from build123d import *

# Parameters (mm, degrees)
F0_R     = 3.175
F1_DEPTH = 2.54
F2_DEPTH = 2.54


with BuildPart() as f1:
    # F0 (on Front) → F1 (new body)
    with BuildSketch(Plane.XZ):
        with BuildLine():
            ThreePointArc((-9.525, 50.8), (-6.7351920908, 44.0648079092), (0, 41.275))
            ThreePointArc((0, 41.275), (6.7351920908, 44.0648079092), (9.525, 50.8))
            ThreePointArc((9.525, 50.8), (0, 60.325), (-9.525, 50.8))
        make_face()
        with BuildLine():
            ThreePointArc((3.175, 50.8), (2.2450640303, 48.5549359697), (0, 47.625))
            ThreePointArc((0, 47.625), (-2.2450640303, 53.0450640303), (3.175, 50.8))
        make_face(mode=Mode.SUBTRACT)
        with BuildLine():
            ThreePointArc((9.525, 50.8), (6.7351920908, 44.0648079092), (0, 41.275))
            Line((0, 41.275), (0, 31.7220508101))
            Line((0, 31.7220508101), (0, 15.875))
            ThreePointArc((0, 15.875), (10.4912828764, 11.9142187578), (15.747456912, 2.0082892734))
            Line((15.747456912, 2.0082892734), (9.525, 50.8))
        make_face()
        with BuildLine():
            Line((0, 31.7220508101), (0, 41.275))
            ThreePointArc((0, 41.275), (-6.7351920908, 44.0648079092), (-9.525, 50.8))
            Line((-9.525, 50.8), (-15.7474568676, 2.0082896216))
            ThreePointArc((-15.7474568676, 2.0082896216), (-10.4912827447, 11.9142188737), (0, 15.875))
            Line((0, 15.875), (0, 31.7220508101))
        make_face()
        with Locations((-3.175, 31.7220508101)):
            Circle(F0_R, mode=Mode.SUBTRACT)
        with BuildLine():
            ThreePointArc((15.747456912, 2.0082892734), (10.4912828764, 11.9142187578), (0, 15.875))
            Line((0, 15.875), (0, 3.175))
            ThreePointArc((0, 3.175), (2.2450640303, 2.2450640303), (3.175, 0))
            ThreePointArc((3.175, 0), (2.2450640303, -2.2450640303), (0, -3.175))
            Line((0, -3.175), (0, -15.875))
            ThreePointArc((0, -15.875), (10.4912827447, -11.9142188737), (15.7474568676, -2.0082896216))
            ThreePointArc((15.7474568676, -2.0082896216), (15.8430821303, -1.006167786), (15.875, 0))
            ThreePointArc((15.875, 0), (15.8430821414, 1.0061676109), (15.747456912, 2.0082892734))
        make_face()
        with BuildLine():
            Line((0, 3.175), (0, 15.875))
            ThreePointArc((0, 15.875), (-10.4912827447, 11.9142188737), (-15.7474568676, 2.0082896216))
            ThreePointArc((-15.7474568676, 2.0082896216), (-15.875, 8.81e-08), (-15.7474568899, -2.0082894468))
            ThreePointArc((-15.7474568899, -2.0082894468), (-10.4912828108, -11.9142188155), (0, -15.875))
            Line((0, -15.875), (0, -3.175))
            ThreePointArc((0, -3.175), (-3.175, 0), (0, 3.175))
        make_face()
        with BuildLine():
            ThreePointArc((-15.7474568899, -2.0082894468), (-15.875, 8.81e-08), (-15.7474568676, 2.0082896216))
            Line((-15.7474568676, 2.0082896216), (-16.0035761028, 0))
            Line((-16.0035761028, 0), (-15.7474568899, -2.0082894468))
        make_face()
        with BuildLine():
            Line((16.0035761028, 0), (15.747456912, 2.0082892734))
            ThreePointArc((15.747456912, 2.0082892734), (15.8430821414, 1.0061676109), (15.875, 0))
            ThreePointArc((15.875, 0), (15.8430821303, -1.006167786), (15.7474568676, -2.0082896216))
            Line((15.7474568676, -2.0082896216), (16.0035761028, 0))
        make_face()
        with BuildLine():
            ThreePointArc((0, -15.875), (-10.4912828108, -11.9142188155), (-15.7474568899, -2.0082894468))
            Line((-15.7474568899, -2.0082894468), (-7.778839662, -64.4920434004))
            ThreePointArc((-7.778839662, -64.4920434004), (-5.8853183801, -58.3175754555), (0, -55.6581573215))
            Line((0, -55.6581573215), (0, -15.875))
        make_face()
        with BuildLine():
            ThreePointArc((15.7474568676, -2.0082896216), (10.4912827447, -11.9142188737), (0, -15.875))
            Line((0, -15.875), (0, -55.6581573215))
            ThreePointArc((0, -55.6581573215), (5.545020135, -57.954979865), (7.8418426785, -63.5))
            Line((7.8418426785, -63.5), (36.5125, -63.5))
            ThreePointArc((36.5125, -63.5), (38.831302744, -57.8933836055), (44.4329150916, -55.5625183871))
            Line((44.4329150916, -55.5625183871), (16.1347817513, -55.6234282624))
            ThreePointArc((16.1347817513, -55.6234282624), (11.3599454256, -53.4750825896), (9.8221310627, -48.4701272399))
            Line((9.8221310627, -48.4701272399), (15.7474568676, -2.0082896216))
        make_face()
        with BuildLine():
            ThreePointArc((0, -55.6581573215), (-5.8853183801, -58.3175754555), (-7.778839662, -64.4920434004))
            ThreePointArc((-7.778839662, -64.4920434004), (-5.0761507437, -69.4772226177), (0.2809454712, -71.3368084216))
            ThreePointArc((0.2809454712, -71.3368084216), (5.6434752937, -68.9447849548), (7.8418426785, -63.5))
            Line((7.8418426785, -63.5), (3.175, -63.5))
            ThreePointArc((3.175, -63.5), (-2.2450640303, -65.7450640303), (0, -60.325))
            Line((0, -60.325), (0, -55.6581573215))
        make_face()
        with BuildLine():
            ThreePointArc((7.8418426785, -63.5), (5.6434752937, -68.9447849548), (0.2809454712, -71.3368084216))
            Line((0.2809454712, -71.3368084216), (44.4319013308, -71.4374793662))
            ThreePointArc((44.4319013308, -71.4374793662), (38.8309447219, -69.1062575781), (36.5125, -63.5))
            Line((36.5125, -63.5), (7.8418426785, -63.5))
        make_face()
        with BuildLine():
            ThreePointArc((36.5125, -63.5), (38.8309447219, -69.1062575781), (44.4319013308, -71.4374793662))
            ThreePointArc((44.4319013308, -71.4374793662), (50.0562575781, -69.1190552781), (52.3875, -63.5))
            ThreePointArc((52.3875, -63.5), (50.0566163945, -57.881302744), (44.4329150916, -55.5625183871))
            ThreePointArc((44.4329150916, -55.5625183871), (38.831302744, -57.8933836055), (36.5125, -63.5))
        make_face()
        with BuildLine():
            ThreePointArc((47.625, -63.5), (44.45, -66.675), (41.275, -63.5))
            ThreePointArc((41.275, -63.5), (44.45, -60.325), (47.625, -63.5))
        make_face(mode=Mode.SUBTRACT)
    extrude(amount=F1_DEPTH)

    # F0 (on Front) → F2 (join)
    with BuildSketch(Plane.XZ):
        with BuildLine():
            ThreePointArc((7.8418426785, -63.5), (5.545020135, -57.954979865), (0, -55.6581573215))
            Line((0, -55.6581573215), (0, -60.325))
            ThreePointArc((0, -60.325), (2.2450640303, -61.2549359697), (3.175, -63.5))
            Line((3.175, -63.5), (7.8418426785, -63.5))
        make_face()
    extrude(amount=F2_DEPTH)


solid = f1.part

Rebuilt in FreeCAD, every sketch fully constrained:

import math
import FreeCAD as App
import Part
import Sketcher
Q = App.Units.Quantity

doc = App.newDocument("Part")
params = doc.addObject("Spreadsheet::Sheet", "Params")
for row, (alias, value) in enumerate([
    ("sketch1_diameter", "0.25 in"),
    ("sketch1_diameter2", "0.25 in"),
    ("sketch1_radius", "0.25 in"),
    ("sketch1_radius2", "0.3125 in"),
    ("sketch1_radius3", "0.375 in"),
    ("pad1_length", "0.1 in"),
    ("sketch2_radius", "0.125 in"),
    ("pad2_length", "0.1 in"),
], start=1):
    params.set(f"A{row}", alias)
    params.set(f"B{row}", "=" + value)
    params.setAlias(f"B{row}", alias)

body = doc.addObject("PartDesign::Body", "Body")

# Sketch on XZ plane
sketch1 = body.newObject("Sketcher::SketchObject", "Sketch")
sketch1.AttachmentSupport = (doc.getObject("XZ_Plane"), [""])
sketch1.MapMode = "FlatFace"
sketch1.addGeometry(Part.ArcOfCircle(Part.Circle(App.Vector(0, -63.5, 0), App.Vector(0, 0, 1), 7.841843), math.radians(-172.732242), math.radians(-87.946856)), False)
sketch1.addGeometry(Part.LineSegment(App.Vector(0.280945, -71.336808, 0), App.Vector(44.431901, -71.437479, 0)), False)
sketch1.addGeometry(Part.ArcOfCircle(Part.Circle(App.Vector(44.45, -63.5, 0), App.Vector(0, 0, 1), 7.9375), math.radians(-90.130643), math.radians(90.123325)), False)
sketch1.addGeometry(Part.LineSegment(App.Vector(44.432915, -55.562518, 0), App.Vector(16.134782, -55.623428, 0)), False)
sketch1.addGeometry(Part.ArcOfCircle(Part.Circle(App.Vector(16.121114, -49.273443, 0), App.Vector(0, 0, 1), 6.35), math.radians(172.732242), math.radians(270.123325)), False)
sketch1.addGeometry(Part.LineSegment(App.Vector(9.822131, -48.470127, 0), App.Vector(15.747457, -2.00829, 0)), False)
sketch1.addGeometry(Part.LineSegment(App.Vector(15.747457, -2.00829, 0), App.Vector(16.003576, 0, 0)), False)
sketch1.addGeometry(Part.LineSegment(App.Vector(16.003576, 0, 0), App.Vector(15.747457, 2.008289, 0)), False)
sketch1.addGeometry(Part.LineSegment(App.Vector(15.747457, 2.008289, 0), App.Vector(9.525, 50.8, 0)), False)
sketch1.addGeometry(Part.ArcOfCircle(Part.Circle(App.Vector(0, 50.8, 0), App.Vector(0, 0, 1), 9.525), math.radians(0), math.radians(180)), False)
sketch1.addGeometry(Part.LineSegment(App.Vector(-9.525, 50.8, 0), App.Vector(-15.747457, 2.00829, 0)), False)
sketch1.addGeometry(Part.LineSegment(App.Vector(-15.747457, 2.00829, 0), App.Vector(-16.003576, 0, 0)), False)
sketch1.addGeometry(Part.LineSegment(App.Vector(-16.003576, 0, 0), App.Vector(-15.747457, -2.008289, 0)), False)
sketch1.addGeometry(Part.LineSegment(App.Vector(-15.747457, -2.008289, 0), App.Vector(-7.77884, -64.492043, 0)), False)
sketch1.addGeometry(Part.ArcOfCircle(Part.Circle(App.Vector(0, -63.5, 0), App.Vector(0, 0, 1), 7.841843), math.radians(0), math.radians(90)), False)
sketch1.addGeometry(Part.LineSegment(App.Vector(7.841843, -63.5, 0), App.Vector(3.175, -63.5, 0)), False)
sketch1.addGeometry(Part.ArcOfCircle(Part.Circle(App.Vector(0, -63.5, 0), App.Vector(0, 0, 1), 3.175), math.radians(90), math.radians(360)), False)
sketch1.addGeometry(Part.LineSegment(App.Vector(0, -60.325, 0), App.Vector(0, -55.658157, 0)), False)
sketch1.addGeometry(Part.Circle(App.Vector(44.45, -63.5, 0), App.Vector(0, 0, 1), 3.175), False)
sketch1.addGeometry(Part.ArcOfCircle(Part.Circle(App.Vector(0, 0, 0), App.Vector(0, 0, 1), 3.175), math.radians(0), math.radians(90)), False)
sketch1.addGeometry(Part.ArcOfCircle(Part.Circle(App.Vector(0, 0, 0), App.Vector(0, 0, 1), 3.175), math.radians(-90), math.radians(0)), False)
sketch1.addGeometry(Part.ArcOfCircle(Part.Circle(App.Vector(0, 0, 0), App.Vector(0, 0, 1), 3.175), math.radians(90), math.radians(270)), False)
sketch1.addGeometry(Part.Circle(App.Vector(-3.175, 31.722051, 0), App.Vector(0, 0, 1), 3.175), False)
sketch1.addGeometry(Part.ArcOfCircle(Part.Circle(App.Vector(0, 50.8, 0), App.Vector(0, 0, 1), 3.175), math.radians(0), math.radians(270)), False)
sketch1.addGeometry(Part.ArcOfCircle(Part.Circle(App.Vector(0, 50.8, 0), App.Vector(0, 0, 1), 3.175), math.radians(-90), math.radians(0)), False)
sketch1.addConstraint(Sketcher.Constraint("Coincident", 0, 2, 1, 1))
sketch1.addConstraint(Sketcher.Constraint("Coincident", 1, 2, 2, 1))
sketch1.addConstraint(Sketcher.Constraint("Coincident", 2, 2, 3, 1))
sketch1.addConstraint(Sketcher.Constraint("Coincident", 3, 2, 4, 2))
sketch1.addConstraint(Sketcher.Constraint("Coincident", 4, 1, 5, 1))
sketch1.addConstraint(Sketcher.Constraint("Coincident", 5, 2, 6, 1))
sketch1.addConstraint(Sketcher.Constraint("Coincident", 6, 2, 7, 1))
sketch1.addConstraint(Sketcher.Constraint("Coincident", 7, 2, 8, 1))
sketch1.addConstraint(Sketcher.Constraint("Coincident", 8, 2, 9, 1))
sketch1.addConstraint(Sketcher.Constraint("Coincident", 9, 2, 10, 1))
sketch1.addConstraint(Sketcher.Constraint("Coincident", 10, 2, 11, 1))
sketch1.addConstraint(Sketcher.Constraint("Coincident", 11, 2, 12, 1))
sketch1.addConstraint(Sketcher.Constraint("Coincident", 12, 2, 13, 1))
sketch1.addConstraint(Sketcher.Constraint("Coincident", 13, 2, 0, 1))
sketch1.addConstraint(Sketcher.Constraint("Coincident", 14, 1, 15, 1))
sketch1.addConstraint(Sketcher.Constraint("Coincident", 15, 2, 16, 2))
sketch1.addConstraint(Sketcher.Constraint("Coincident", 16, 1, 17, 1))
sketch1.addConstraint(Sketcher.Constraint("Coincident", 17, 2, 14, 2))
sketch1.addConstraint(Sketcher.Constraint("Coincident", 19, 1, 20, 2))
sketch1.addConstraint(Sketcher.Constraint("Coincident", 20, 1, 21, 2))
sketch1.addConstraint(Sketcher.Constraint("Coincident", 21, 1, 19, 2))
sketch1.addConstraint(Sketcher.Constraint("Coincident", 23, 1, 24, 2))
sketch1.addConstraint(Sketcher.Constraint("Coincident", 24, 1, 23, 2))
sketch1.addConstraint(Sketcher.Constraint("Horizontal", 15))
sketch1.addConstraint(Sketcher.Constraint("Vertical", 17))
sketch1.addConstraint(Sketcher.Constraint("Coincident", 19, 3, -1, 1))
sketch1.addConstraint(Sketcher.Constraint("Coincident", 20, 3, -1, 1))
sketch1.addConstraint(Sketcher.Constraint("Coincident", 14, 3, 0, 3))
sketch1.addConstraint(Sketcher.Constraint("Coincident", 16, 3, 0, 3))
sketch1.addConstraint(Sketcher.Constraint("Coincident", 18, 3, 2, 3))
sketch1.addConstraint(Sketcher.Constraint("Coincident", 23, 3, 9, 3))
sketch1.addConstraint(Sketcher.Constraint("PointOnObject", 0, 3, -2))
sketch1.addConstraint(Sketcher.Constraint("PointOnObject", 9, 3, -2))
sketch1.addConstraint(Sketcher.Constraint("PointOnObject", 24, 3, -2))
sketch1.addConstraint(Sketcher.Constraint("PointOnObject", 6, 2, -1))
sketch1.addConstraint(Sketcher.Constraint("PointOnObject", 11, 2, -1))
sketch1.addConstraint(Sketcher.Constraint("PointOnObject", 16, 1, -2))
sketch1.addConstraint(Sketcher.Constraint("PointOnObject", 19, 1, -1))
sketch1.addConstraint(Sketcher.Constraint("PointOnObject", 20, 1, -2))
sketch1.addConstraint(Sketcher.Constraint("PointOnObject", 21, 1, -2))
sketch1.addConstraint(Sketcher.Constraint("PointOnObject", 24, 1, -2))
sketch1.addConstraint(Sketcher.Constraint("Diameter", 18, Q("0.25 in")))
sketch1.addConstraint(Sketcher.Constraint("Diameter", 22, Q("0.25 in")))
sketch1.addConstraint(Sketcher.Constraint("Radius", 4, Q("0.25 in")))
sketch1.addConstraint(Sketcher.Constraint("DistanceY", -1, 1, 9, 3, Q("2 in")))
sketch1.addConstraint(Sketcher.Constraint("DistanceY", -1, 1, 8, 2, Q("2 in")))
sketch1.addConstraint(Sketcher.Constraint("DistanceY", -1, 1, 9, 2, Q("2 in")))
sketch1.addConstraint(Sketcher.Constraint("DistanceY", -1, 1, 23, 1, Q("2 in")))
sketch1.addConstraint(Sketcher.Constraint("Radius", 2, Q("0.3125 in")))
sketch1.addConstraint(Sketcher.Constraint("Radius", 9, Q("0.375 in")))
sketch1.addConstraint(Sketcher.Constraint("Radius", 16, Q("0.125 in")))
sketch1.addConstraint(Sketcher.Constraint("Radius", 19, Q("0.125 in")))
sketch1.addConstraint(Sketcher.Constraint("Radius", 23, Q("0.125 in")))
sketch1.addConstraint(Sketcher.Constraint("DistanceY", 0, 3, -1, 1, Q("2.5 in")))
sketch1.addConstraint(Sketcher.Constraint("DistanceY", 2, 3, -1, 1, Q("2.5 in")))
sketch1.addConstraint(Sketcher.Constraint("DistanceY", 14, 1, -1, 1, Q("2.5 in")))
sketch1.addConstraint(Sketcher.Constraint("DistanceX", 22, 3, 8, 2, Q("0.5 in")))
sketch1.addConstraint(Sketcher.Constraint("DistanceX", -1, 1, 2, 3, Q("1.75 in")))
sketch1.addConstraint(Sketcher.Constraint("DistanceX", 22, 3, 21, 3, Q("0.125 in")))
sketch1.addConstraint(Sketcher.Constraint("Radius", 0, 7.841843))
sketch1.addConstraint(Sketcher.Constraint("Radius", 14, 7.841843))
sketch1.addConstraint(Sketcher.Constraint("DistanceY", 1, 2, 4, 3, Q("0.8725999 in")))
sketch1.addConstraint(Sketcher.Constraint("Distance", 3, 28.298199))
sketch1.addConstraint(Sketcher.Constraint("DistanceX", -1, 1, 1, 2, 44.431901))
sketch1.addConstraint(Sketcher.Constraint("DistanceX", 4, 3, 2, 2, 28.311801))
sketch1.addConstraint(Sketcher.Constraint("DistanceY", 3, 2, 4, 1, 7.153301))
sketch1.addConstraint(Sketcher.Constraint("Distance", 1, 44.151071))
sketch1.addConstraint(Sketcher.Constraint("Distance", 8, 49.186889))
sketch1.addConstraint(Sketcher.Constraint("Distance", 10, 49.186888))
sketch1.addConstraint(Sketcher.Constraint("DistanceY", -1, 1, 22, 3, 31.722051))
sketch1.addConstraint(Sketcher.Constraint("DistanceX", -1, 1, 3, 2, 16.134782))
sketch1.addConstraint(Sketcher.Constraint("DistanceY", 5, 2, -1, 1, 2.00829))
sketch1.addConstraint(Sketcher.Constraint("DistanceY", -1, 1, 7, 2, 2.008289))
sketch1.addConstraint(Sketcher.Constraint("DistanceY", -1, 1, 10, 2, 2.00829))
sketch1.addConstraint(Sketcher.Constraint("DistanceY", 12, 2, -1, 1, 2.008289))
sketch1.addConstraint(Sketcher.Constraint("DistanceX", 13, 2, -1, 1, 7.77884))
sketch1.addConstraint(Sketcher.Constraint("DistanceX", 5, 2, 6, 2, 0.256119))
sketch1.addConstraint(Sketcher.Constraint("DistanceX", 7, 2, 6, 2, 0.256119))
sketch1.addConstraint(Sketcher.Constraint("DistanceX", 11, 2, 10, 2, 0.256119))
sketch1.addConstraint(Sketcher.Constraint("DistanceX", 11, 2, 12, 2, 0.256119))
sketch1.setExpression("Constraints[41]", "Params.sketch1_diameter")
sketch1.setExpression("Constraints[42]", "Params.sketch1_diameter2")
sketch1.setExpression("Constraints[43]", "Params.sketch1_radius")
sketch1.setExpression("Constraints[48]", "Params.sketch1_radius2")
sketch1.setExpression("Constraints[49]", "Params.sketch1_radius3")
pad1 = body.newObject("PartDesign::Pad", "Pad")
pad1.Profile = sketch1
pad1.setExpression("Length", "Params.pad1_length")

# Sketch on XZ plane
sketch2 = body.newObject("Sketcher::SketchObject", "Sketch001")
sketch2.AttachmentSupport = (doc.getObject("XZ_Plane"), [""])
sketch2.MapMode = "FlatFace"
sketch2.addGeometry(Part.ArcOfCircle(Part.Circle(App.Vector(0, -63.5, 0), App.Vector(0, 0, 1), 7.8), math.radians(0), math.radians(90)), False)
sketch2.addGeometry(Part.LineSegment(App.Vector(0, -55.7, 0), App.Vector(0, -60.3, 0)), False)
sketch2.addGeometry(Part.ArcOfCircle(Part.Circle(App.Vector(0, -63.5, 0), App.Vector(0, 0, 1), 3.2), math.radians(0), math.radians(90)), False)
sketch2.addGeometry(Part.LineSegment(App.Vector(3.2, -63.5, 0), App.Vector(7.8, -63.5, 0)), False)
sketch2.addConstraint(Sketcher.Constraint("Coincident", 0, 2, 1, 1))
sketch2.addConstraint(Sketcher.Constraint("Coincident", 1, 2, 2, 2))
sketch2.addConstraint(Sketcher.Constraint("Coincident", 2, 1, 3, 1))
sketch2.addConstraint(Sketcher.Constraint("Coincident", 3, 2, 0, 1))
sketch2.addConstraint(Sketcher.Constraint("Vertical", 1))
sketch2.addConstraint(Sketcher.Constraint("Horizontal", 3))
sketch2.addConstraint(Sketcher.Constraint("Coincident", 2, 3, 0, 3))
sketch2.addConstraint(Sketcher.Constraint("PointOnObject", 0, 3, -2))
sketch2.addConstraint(Sketcher.Constraint("PointOnObject", 0, 2, -2))
sketch2.addConstraint(Sketcher.Constraint("Horizontal", 0, 3, 2, 1))
sketch2.addConstraint(Sketcher.Constraint("Radius", 2, Q("0.125 in")))
sketch2.addConstraint(Sketcher.Constraint("DistanceY", 0, 3, -1, 1, Q("2.5 in")))
sketch2.addConstraint(Sketcher.Constraint("Radius", 0, 7.841843))
sketch2.setExpression("Constraints[10]", "Params.sketch2_radius")
pad2 = body.newObject("PartDesign::Pad", "Pad001")
pad2.Profile = sketch2
pad2.setExpression("Length", "Params.pad2_length")

doc.recompute()
